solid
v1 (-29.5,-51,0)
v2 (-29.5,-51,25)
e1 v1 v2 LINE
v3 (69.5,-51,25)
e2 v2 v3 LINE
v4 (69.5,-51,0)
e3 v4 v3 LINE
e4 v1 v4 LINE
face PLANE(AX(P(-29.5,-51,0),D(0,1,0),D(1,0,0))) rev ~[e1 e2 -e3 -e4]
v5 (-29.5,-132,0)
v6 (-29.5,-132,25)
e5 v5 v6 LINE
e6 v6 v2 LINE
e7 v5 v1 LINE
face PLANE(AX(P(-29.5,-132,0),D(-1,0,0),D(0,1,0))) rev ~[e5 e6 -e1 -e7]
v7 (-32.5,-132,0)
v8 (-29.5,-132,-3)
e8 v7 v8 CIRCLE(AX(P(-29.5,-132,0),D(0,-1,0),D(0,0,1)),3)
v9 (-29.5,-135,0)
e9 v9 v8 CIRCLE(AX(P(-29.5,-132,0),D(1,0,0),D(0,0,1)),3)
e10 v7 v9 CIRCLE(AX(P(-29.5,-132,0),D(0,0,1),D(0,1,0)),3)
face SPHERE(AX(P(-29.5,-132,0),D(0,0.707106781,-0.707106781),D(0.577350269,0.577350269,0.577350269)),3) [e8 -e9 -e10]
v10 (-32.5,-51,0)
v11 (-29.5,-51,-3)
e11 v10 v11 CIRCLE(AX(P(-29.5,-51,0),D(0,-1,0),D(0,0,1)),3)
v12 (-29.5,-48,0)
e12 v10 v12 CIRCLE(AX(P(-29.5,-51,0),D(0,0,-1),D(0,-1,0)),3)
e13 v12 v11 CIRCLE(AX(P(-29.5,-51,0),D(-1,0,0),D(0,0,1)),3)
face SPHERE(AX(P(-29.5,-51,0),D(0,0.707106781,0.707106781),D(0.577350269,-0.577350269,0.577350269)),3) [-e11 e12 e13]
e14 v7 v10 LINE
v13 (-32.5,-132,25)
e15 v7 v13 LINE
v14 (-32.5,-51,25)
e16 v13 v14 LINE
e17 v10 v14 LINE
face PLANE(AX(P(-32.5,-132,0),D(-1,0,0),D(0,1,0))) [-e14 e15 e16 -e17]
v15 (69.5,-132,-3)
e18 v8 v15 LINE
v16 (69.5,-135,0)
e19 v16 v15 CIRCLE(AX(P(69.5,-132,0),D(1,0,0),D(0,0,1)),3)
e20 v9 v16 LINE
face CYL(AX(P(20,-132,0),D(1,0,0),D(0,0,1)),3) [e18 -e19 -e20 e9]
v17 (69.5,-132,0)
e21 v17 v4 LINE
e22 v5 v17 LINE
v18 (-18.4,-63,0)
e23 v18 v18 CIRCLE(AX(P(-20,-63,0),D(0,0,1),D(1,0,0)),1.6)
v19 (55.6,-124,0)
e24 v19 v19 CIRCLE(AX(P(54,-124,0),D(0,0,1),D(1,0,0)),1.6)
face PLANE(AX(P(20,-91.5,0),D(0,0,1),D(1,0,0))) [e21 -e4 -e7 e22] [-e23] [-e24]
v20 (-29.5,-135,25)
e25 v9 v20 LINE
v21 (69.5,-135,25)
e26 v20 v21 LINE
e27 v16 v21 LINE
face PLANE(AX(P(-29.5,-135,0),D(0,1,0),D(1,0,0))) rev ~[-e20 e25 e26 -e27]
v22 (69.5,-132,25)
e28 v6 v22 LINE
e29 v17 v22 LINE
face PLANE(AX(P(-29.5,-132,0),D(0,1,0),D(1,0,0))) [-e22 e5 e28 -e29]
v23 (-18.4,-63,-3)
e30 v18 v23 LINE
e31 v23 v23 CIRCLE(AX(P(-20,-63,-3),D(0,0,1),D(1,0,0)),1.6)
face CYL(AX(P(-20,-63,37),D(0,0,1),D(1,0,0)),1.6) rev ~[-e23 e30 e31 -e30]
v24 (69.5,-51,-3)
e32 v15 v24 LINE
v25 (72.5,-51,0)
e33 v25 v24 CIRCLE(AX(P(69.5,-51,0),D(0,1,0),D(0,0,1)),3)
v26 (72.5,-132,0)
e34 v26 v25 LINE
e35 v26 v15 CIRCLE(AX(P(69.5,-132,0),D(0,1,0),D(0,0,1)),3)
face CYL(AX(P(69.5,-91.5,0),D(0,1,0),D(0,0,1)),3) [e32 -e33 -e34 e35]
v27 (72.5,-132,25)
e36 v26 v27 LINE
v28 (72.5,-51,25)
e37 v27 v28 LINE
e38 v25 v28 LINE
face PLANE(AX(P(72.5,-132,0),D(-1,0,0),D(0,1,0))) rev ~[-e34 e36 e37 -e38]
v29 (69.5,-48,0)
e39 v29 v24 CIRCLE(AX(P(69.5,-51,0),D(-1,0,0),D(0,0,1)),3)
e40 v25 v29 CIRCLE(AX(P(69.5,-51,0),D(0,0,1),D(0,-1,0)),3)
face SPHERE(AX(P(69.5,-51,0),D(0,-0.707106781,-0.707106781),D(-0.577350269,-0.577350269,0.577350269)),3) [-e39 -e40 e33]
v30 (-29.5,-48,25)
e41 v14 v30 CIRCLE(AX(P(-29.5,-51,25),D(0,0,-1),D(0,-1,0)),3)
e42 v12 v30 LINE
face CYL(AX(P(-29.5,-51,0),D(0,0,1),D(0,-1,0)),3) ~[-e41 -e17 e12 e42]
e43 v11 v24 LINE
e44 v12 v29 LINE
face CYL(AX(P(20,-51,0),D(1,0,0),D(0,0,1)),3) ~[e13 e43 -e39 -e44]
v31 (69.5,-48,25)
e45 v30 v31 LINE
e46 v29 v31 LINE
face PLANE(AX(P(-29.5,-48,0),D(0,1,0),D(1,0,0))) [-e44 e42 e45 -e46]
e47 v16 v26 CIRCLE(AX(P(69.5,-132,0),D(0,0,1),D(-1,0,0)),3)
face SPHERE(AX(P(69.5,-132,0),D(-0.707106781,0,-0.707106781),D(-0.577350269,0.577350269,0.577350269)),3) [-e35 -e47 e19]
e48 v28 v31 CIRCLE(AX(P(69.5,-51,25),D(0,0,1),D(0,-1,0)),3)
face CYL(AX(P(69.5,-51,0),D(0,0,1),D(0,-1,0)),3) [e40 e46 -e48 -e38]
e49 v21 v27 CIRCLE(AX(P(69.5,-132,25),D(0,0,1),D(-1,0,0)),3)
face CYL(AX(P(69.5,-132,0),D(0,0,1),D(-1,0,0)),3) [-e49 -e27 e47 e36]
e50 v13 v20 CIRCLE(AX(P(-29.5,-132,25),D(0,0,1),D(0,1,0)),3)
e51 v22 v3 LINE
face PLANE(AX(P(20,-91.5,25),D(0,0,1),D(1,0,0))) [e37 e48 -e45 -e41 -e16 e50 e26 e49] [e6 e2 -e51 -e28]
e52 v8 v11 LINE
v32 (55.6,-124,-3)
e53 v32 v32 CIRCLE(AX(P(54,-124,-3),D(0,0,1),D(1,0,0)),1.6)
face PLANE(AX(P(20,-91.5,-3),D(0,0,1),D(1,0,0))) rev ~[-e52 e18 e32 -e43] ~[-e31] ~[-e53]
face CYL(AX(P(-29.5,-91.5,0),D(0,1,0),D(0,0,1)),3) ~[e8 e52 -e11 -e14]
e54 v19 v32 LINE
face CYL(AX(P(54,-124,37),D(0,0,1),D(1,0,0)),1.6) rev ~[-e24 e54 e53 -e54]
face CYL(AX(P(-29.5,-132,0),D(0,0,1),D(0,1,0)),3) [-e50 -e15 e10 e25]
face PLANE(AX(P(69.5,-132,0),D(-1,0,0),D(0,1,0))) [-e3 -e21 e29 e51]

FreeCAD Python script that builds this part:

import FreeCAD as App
import Part
import Sketcher

V = App.Vector
Q = App.Units.Quantity


def faces_at(feature, points):
    """Names of the faces that lie closest to the given points."""
    faces = feature.Shape.Faces
    near = lambda p: min(range(len(faces)), key=lambda i: faces[i].distToShape(Part.Vertex(*p))[0])
    return sorted({f"Face{near(p) + 1}" for p in points})


def add_polygon(sketch, points):
    """Adds a closed chain of lines whose ends are joined by coincident constraints."""
    first, n = sketch.GeometryCount, len(points)
    for a, b in zip(points, points[1:] + points[:1]):
        sketch.addGeometry(Part.LineSegment(App.Vector(*a, 0), App.Vector(*b, 0)), False)
    for i in range(n):
        sketch.addConstraint(Sketcher.Constraint("Coincident", first + i, 2, first + (i + 1) % n, 1))

doc = App.newDocument("Part")
body = doc.addObject("PartDesign::Body", "Body")

# Sketch on XY plane
sketch1 = body.newObject("Sketcher::SketchObject", "Sketch")
sketch1.AttachmentSupport = (doc.getObject("XY_Plane"), [""])
sketch1.MapMode = "FlatFace"
add_polygon(sketch1, [(-30, -51), (-30, -132), (70, -132), (70, -51)])  # lines 0-3
sketch1.addConstraint(Sketcher.Constraint("Vertical", 0))
sketch1.addConstraint(Sketcher.Constraint("Horizontal", 1))
sketch1.addConstraint(Sketcher.Constraint("Vertical", 2))
sketch1.addConstraint(Sketcher.Constraint("Horizontal", 3))
sketch1.addConstraint(Sketcher.Constraint("DistanceX", 1, 1, 1, 2, Q("99 mm")))
sketch1.addConstraint(Sketcher.Constraint("DistanceY", 0, 2, 0, 1, Q("81 mm")))
sketch1.addConstraint(Sketcher.Constraint("DistanceY", 0, 2, -1, 1, Q("132 mm")))
sketch1.addConstraint(Sketcher.Constraint("DistanceX", 0, 2, -1, 1, Q("29.5 mm")))
pad1 = body.newObject("PartDesign::Pad", "Pad")
pad1.Profile = sketch1
pad1.Length = 25
doc.recompute()

thickness = body.newObject("PartDesign::Thickness", "Thickness")
thickness.Base = (pad1, faces_at(pad1, [(20, -91.5, 25)]))
thickness.Value = 3
thickness.Reversed = False
thickness.Join = "Arc"

# Sketch on XY plane
sketch2 = body.newObject("Sketcher::SketchObject", "Sketch001")
sketch2.AttachmentSupport = (doc.getObject("XY_Plane"), [""])
sketch2.MapMode = "FlatFace"
sketch2.AttachmentOffset = App.Placement(V(0, 0, 37), App.Rotation())
sketch2.addGeometry(Part.Circle(V(-20, -63, 0), V(0, 0, 1), 1.6), False)
sketch2.addGeometry(Part.Circle(V(54, -124, 0), V(0, 0, 1), 1.6), False)
sketch2.addConstraint(Sketcher.Constraint("Equal", 0, 1))
sketch2.addConstraint(Sketcher.Constraint("Diameter", 0, Q("3.2 mm")))
sketch2.addConstraint(Sketcher.Constraint("DistanceX", 0, 3, -1, 1, Q("20 mm")))
sketch2.addConstraint(Sketcher.Constraint("DistanceY", 0, 3, -1, 1, Q("63 mm")))
sketch2.addConstraint(Sketcher.Constraint("DistanceX", -1, 1, 1, 3, Q("54 mm")))
sketch2.addConstraint(Sketcher.Constraint("DistanceY", 1, 3, -1, 1, Q("124 mm")))
pocket1 = body.newObject("PartDesign::Pocket", "Pocket")
pocket1.Profile = sketch2
pocket1.Type = "ThroughAll"

doc.recompute()
